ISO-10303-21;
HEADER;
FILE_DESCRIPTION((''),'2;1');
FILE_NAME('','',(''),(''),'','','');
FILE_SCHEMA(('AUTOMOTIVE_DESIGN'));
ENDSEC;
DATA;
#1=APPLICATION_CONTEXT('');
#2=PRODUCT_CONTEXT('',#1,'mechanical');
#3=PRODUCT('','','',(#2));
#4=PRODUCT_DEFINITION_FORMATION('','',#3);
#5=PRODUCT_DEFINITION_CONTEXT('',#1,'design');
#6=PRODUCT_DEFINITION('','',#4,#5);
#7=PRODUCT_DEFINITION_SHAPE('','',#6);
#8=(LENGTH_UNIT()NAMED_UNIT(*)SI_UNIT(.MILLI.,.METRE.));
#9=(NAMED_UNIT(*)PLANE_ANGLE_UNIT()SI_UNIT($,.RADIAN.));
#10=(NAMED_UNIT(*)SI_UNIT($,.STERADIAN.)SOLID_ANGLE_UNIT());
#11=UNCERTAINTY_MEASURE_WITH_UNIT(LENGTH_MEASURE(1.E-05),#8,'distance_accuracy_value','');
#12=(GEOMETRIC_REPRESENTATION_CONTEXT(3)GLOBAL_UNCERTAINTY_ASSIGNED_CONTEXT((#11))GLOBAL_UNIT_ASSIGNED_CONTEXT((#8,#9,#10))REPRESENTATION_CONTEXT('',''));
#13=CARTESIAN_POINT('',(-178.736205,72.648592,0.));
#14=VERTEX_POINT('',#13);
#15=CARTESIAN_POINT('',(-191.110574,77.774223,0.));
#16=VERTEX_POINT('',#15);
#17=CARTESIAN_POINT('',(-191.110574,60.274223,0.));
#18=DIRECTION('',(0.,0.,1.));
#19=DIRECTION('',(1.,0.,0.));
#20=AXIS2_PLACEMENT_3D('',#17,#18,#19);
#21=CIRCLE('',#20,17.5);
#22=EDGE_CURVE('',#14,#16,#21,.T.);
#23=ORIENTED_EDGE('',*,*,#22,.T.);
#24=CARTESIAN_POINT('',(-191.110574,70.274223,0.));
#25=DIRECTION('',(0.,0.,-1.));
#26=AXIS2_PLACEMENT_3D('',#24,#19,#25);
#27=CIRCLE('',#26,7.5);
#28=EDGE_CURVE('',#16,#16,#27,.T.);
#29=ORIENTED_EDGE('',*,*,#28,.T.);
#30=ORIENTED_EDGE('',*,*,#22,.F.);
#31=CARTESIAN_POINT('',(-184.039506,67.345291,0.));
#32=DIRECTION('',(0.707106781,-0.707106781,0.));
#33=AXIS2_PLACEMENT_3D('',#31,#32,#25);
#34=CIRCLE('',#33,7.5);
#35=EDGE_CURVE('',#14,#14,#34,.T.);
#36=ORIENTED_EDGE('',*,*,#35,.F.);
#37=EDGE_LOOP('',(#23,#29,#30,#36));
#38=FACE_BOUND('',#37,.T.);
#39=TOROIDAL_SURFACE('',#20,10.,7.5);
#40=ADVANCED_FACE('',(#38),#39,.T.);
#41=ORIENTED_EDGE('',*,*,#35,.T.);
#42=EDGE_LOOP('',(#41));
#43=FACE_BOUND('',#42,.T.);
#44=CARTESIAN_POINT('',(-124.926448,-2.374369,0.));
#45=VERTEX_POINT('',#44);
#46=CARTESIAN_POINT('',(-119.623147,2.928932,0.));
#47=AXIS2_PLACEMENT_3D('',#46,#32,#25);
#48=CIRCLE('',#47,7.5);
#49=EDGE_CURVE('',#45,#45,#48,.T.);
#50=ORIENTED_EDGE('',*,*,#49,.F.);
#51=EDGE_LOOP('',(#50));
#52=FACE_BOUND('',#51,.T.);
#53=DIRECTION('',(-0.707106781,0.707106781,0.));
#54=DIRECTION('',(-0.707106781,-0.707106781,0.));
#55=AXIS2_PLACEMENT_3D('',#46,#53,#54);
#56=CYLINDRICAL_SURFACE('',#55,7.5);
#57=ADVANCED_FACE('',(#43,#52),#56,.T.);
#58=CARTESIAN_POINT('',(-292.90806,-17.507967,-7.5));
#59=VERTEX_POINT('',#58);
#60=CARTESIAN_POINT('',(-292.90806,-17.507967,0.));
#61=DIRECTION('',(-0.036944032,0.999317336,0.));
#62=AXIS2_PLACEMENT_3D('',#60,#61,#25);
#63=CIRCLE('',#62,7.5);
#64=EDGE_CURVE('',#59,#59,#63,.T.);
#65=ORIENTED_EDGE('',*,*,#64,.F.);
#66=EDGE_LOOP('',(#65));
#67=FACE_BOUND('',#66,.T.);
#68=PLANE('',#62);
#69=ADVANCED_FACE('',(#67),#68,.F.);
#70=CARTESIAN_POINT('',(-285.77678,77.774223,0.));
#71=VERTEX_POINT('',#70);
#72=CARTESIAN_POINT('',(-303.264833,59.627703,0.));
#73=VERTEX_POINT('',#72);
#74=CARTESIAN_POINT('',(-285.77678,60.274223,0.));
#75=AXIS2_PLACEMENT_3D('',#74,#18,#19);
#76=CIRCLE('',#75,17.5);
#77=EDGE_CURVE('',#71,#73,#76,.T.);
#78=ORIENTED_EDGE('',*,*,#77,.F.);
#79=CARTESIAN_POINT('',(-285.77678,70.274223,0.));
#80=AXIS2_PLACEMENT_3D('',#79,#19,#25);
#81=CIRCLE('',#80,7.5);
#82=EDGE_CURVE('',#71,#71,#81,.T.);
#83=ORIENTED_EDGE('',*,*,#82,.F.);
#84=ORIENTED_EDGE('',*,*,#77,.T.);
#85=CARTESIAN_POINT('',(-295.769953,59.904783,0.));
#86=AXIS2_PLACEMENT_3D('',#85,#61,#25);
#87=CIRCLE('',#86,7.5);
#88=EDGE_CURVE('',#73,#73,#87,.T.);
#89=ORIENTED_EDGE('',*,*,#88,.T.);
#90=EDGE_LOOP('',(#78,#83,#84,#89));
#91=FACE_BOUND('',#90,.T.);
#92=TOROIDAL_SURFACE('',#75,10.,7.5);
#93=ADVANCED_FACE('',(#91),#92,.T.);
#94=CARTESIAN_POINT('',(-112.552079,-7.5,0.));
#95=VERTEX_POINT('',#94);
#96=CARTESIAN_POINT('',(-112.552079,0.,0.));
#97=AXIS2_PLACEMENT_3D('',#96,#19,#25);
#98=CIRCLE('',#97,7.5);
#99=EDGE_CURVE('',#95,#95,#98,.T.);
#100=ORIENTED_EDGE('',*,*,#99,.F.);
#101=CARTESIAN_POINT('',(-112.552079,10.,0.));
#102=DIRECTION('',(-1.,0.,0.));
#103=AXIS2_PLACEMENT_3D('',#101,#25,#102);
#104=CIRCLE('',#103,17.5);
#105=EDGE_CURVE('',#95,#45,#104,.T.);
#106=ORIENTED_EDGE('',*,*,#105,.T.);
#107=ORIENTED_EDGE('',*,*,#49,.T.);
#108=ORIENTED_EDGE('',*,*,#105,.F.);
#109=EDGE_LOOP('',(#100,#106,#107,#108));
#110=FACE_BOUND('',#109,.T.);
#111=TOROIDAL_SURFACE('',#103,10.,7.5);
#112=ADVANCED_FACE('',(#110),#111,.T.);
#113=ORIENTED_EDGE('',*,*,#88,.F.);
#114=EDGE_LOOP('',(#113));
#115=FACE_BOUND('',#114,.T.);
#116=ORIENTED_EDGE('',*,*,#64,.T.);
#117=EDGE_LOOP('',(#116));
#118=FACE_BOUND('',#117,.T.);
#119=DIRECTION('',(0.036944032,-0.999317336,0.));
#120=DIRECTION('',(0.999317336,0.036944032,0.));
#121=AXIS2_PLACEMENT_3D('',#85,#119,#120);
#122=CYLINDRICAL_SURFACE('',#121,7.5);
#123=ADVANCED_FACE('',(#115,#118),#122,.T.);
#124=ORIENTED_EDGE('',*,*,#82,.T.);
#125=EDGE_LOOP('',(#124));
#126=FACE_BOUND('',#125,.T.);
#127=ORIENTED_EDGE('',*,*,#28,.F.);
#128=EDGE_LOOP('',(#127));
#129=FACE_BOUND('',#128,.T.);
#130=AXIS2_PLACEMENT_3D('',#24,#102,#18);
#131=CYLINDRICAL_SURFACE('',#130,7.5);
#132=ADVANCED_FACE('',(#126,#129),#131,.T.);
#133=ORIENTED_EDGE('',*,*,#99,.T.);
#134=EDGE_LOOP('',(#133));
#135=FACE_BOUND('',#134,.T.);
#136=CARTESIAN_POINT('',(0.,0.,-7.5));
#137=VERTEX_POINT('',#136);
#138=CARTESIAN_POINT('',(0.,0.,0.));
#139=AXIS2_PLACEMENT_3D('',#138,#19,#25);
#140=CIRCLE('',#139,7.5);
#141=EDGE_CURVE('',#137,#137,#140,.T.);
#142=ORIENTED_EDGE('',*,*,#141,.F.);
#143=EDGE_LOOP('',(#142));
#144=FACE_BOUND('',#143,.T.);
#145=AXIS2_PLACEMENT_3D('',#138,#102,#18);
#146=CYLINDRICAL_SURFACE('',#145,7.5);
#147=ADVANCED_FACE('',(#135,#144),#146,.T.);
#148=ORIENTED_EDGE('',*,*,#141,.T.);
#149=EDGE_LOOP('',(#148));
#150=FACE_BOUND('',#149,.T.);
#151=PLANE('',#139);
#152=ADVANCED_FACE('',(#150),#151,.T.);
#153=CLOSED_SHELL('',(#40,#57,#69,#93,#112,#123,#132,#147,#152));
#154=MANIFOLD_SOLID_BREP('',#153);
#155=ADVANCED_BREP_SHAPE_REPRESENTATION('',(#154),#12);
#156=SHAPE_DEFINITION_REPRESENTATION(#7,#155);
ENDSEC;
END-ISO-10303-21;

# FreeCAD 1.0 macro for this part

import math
import FreeCAD as App
import Part
import Sketcher
Q = App.Units.Quantity

doc = App.newDocument("Part")
body = doc.addObject("PartDesign::Body", "Body")

# Sketch on YZ plane
sketch1 = body.newObject("Sketcher::SketchObject", "Sketch")
sketch1.AttachmentSupport = (doc.getObject("YZ_Plane"), [""])
sketch1.MapMode = "FlatFace"
sketch1.addGeometry(Part.Circle(App.Vector(0, 0, 0), App.Vector(0, 0, 1), 8), False)
sketch1.addConstraint(Sketcher.Constraint("Coincident", 0, 3, -1, 1))
sketch1.addConstraint(Sketcher.Constraint("Diameter", 0, Q("15 mm")))

# Sketch on XY plane
sketch2 = body.newObject("Sketcher::SketchObject", "Sketch001")
sketch2.AttachmentSupport = (doc.getObject("XY_Plane"), [""])
sketch2.MapMode = "FlatFace"
sketch2.addGeometry(Part.LineSegment(App.Vector(0, 0, 0), App.Vector(-113, 0, 0)), False)
sketch2.addGeometry(Part.ArcOfCircle(Part.Circle(App.Vector(-113, 10, 0), App.Vector(0, 0, 1), 10), math.radians(-135), math.radians(-90)), False)
sketch2.addGeometry(Part.LineSegment(App.Vector(-120, 3, 0), App.Vector(-184, 67, 0)), False)
sketch2.addGeometry(Part.ArcOfCircle(Part.Circle(App.Vector(-191, 60, 0), App.Vector(0, 0, 1), 10), math.radians(45), math.radians(90)), False)
sketch2.addGeometry(Part.LineSegment(App.Vector(-191, 70, 0), App.Vector(-286, 70, 0)), False)
sketch2.addGeometry(Part.ArcOfCircle(Part.Circle(App.Vector(-286, 60, 0), App.Vector(0, 0, 1), 10), math.radians(90), math.radians(182)), False)
sketch2.addGeometry(Part.LineSegment(App.Vector(-296, 60, 0), App.Vector(-293, -18, 0)), False)
sketch2.addConstraint(Sketcher.Constraint("Tangent", 0, 2, 1, 2))
sketch2.addConstraint(Sketcher.Constraint("Tangent", 1, 1, 2, 1))
sketch2.addConstraint(Sketcher.Constraint("Tangent", 2, 2, 3, 1))
sketch2.addConstraint(Sketcher.Constraint("Tangent", 3, 2, 4, 1))
sketch2.addConstraint(Sketcher.Constraint("Tangent", 4, 2, 5, 1))
sketch2.addConstraint(Sketcher.Constraint("Tangent", 5, 2, 6, 1))
sketch2.addConstraint(Sketcher.Constraint("Horizontal", 0))
sketch2.addConstraint(Sketcher.Constraint("Horizontal", 4))
sketch2.addConstraint(Sketcher.Constraint("Coincident", 0, 1, -1, 1))
sketch2.addConstraint(Sketcher.Constraint("Equal", 1, 3))
sketch2.addConstraint(Sketcher.Constraint("Equal", 3, 5))
sketch2.addConstraint(Sketcher.Constraint("Radius", 1, Q("10 mm")))
sketch2.addConstraint(Sketcher.Constraint("Angle", 2, Q("135 deg")))
sketch2.addConstraint(Sketcher.Constraint("DistanceX", 0, 2, 0, 1, Q("112.552079 mm")))
sketch2.addConstraint(Sketcher.Constraint("DistanceX", 5, 3, 1, 3, Q("173.2247 mm")))
sketch2.addConstraint(Sketcher.Constraint("Distance", 2, Q("91.098488 mm")))
sketch2.addConstraint(Sketcher.Constraint("DistanceX", 6, 2, -1, 1, Q("292.90806 mm")))
sketch2.addConstraint(Sketcher.Constraint("DistanceY", 6, 2, 5, 2, Q("77.41275 mm")))
doc.recompute()

additivepipe = body.newObject("PartDesign::AdditivePipe", "AdditivePipe")
additivepipe.Profile = sketch1
additivepipe.Spine = (sketch2, ["Edge1", "Edge2", "Edge3", "Edge4", "Edge5", "Edge6", "Edge7"])

doc.recompute()
